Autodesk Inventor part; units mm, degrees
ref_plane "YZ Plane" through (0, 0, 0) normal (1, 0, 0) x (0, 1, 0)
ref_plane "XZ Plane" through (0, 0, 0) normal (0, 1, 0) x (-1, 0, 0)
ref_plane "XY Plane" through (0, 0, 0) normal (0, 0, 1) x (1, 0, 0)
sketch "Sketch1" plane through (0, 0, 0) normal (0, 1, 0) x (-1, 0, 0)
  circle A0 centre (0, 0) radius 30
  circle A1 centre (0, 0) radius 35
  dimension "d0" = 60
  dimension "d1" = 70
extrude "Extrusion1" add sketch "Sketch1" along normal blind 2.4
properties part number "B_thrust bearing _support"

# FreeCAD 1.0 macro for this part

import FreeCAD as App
import Part
import Sketcher
from FreeCAD import Vector
Q = App.Units.Quantity

doc = App.newDocument("Part")
params = doc.addObject("Spreadsheet::Sheet", "Params")
for row, (alias, value) in enumerate([
    ("sketch1_diameter", "70 mm"),
    ("sketch1_diameter2", "60 mm"),
    ("pad1_length", "2.4 mm"),
], start=1):
    params.set(f"A{row}", alias)
    params.set(f"B{row}", "=" + value)
    params.setAlias(f"B{row}", alias)

body = doc.addObject("PartDesign::Body", "Body")

# Sketch on XZ plane
sketch1 = body.newObject("Sketcher::SketchObject", "Sketch")
sketch1.AttachmentSupport = (doc.getObject("XZ_Plane"), [""])
sketch1.MapMode = "FlatFace"
sketch1.addGeometry([
    Part.Circle(Vector(0, 0, 0), Vector(0, 0, 1), 35),
    Part.Circle(Vector(0, 0, 0), Vector(0, 0, 1), 30),
], False)
sketch1.addConstraint([
    Sketcher.Constraint("Coincident", 0, 3, -1, 1),
    Sketcher.Constraint("Coincident", 1, 3, -1, 1),
    Sketcher.Constraint("Diameter", 0, Q("70 mm")),
    Sketcher.Constraint("Diameter", 1, Q("60 mm")),
])
sketch1.setExpression("Constraints[2]", "Params.sketch1_diameter")
sketch1.setExpression("Constraints[3]", "Params.sketch1_diameter2")
pad1 = body.newObject("PartDesign::Pad", "Pad")
pad1.Profile = sketch1
pad1.setExpression("Length", "Params.pad1_length")
pad1.Reversed = True

doc.recompute()
